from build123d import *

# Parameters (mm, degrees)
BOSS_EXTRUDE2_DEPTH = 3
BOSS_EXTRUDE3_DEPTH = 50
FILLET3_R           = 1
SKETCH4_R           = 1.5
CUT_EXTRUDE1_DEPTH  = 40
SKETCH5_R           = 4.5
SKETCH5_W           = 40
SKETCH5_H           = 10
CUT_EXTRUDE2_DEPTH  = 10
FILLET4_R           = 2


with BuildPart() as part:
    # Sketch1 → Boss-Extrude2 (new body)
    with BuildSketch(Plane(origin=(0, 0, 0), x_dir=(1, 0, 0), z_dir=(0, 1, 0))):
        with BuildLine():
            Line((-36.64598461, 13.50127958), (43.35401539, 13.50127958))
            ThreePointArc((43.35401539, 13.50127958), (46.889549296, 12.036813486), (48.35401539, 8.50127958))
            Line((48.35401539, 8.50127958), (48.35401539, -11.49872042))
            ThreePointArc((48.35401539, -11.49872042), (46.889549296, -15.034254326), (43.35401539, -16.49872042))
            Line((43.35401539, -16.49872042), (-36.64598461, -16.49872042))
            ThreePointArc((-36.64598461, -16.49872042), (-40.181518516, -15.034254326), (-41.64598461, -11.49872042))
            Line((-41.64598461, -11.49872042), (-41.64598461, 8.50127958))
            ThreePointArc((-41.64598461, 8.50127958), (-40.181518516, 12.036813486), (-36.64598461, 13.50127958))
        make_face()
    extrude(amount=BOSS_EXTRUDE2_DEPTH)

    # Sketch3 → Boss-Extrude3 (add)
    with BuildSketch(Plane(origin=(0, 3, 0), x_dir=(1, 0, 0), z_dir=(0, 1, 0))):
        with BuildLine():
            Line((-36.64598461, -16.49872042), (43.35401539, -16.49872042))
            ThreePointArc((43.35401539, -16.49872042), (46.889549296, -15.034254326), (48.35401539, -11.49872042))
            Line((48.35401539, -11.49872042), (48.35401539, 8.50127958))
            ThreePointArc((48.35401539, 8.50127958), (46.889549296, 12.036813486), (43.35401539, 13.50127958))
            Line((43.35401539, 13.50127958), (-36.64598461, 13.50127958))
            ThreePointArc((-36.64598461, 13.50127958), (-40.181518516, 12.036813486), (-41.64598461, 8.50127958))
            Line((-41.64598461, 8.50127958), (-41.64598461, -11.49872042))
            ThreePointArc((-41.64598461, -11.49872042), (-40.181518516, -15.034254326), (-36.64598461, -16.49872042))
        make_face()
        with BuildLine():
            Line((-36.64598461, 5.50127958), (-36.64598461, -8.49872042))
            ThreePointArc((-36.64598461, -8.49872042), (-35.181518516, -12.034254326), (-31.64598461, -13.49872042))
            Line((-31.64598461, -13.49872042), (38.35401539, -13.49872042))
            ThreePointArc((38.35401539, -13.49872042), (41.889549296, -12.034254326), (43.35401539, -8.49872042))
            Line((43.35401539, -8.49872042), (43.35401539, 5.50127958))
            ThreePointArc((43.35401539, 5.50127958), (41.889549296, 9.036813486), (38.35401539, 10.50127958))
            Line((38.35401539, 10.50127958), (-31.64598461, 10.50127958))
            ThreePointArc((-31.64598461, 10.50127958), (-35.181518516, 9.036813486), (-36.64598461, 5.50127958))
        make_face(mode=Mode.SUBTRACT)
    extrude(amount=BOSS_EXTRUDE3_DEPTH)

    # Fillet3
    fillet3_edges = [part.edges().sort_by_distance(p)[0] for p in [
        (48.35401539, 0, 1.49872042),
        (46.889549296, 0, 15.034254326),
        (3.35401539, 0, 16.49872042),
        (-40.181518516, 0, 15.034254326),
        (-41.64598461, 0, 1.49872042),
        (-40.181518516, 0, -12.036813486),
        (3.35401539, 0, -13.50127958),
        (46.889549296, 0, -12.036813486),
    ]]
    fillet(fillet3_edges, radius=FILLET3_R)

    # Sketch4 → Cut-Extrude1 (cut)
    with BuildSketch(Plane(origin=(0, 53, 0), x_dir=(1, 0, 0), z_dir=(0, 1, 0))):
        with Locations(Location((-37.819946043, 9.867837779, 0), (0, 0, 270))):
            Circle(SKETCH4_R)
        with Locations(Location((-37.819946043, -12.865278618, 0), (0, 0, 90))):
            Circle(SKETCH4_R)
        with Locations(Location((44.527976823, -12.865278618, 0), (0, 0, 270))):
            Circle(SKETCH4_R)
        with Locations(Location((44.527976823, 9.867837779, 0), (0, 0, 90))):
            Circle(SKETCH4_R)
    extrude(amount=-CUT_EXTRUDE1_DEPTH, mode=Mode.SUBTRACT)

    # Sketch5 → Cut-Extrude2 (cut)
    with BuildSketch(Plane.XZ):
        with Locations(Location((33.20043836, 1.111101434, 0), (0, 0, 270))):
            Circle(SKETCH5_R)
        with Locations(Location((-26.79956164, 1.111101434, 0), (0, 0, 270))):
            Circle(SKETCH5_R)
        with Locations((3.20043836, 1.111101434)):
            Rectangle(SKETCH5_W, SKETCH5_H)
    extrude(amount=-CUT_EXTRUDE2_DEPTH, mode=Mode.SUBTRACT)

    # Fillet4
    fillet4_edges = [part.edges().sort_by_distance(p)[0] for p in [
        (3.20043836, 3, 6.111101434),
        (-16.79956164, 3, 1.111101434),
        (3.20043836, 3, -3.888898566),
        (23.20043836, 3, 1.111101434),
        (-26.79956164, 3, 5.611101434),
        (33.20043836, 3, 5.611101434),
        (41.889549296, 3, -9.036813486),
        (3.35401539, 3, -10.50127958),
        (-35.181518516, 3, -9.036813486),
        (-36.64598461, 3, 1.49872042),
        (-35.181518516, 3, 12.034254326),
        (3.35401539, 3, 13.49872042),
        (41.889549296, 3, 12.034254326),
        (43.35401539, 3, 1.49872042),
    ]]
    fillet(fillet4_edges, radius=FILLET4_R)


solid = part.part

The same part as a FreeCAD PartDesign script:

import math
import FreeCAD as App
import Part
import Sketcher
Q = App.Units.Quantity


def edges_at(feature, points):
    """Names of the edges that pass closest to the given points."""
    edges = feature.Shape.Edges
    near = lambda p: min(range(len(edges)), key=lambda i: edges[i].distToShape(Part.Vertex(*p))[0])
    return sorted({f"Edge{near(p) + 1}" for p in points})

doc = App.newDocument("Part")
body = doc.addObject("PartDesign::Body", "Body")

# Sketch on XZ plane
sketch1 = body.newObject("Sketcher::SketchObject", "Sketch")
sketch1.AttachmentSupport = (doc.getObject("XZ_Plane"), [""])
sketch1.MapMode = "FlatFace"
sketch1.addGeometry([
    Part.LineSegment(App.Vector(43, -14, 0), App.Vector(-37, -14, 0)),  # 0
    Part.ArcOfCircle(Part.Circle(App.Vector(-37, -9, 0), App.Vector(0, 0, 1), 5), math.radians(180), math.radians(270)),  # 1
    Part.LineSegment(App.Vector(-42, -9, 0), App.Vector(-42, 11, 0)),  # 2
    Part.ArcOfCircle(Part.Circle(App.Vector(-37, 11, 0), App.Vector(0, 0, 1), 5), math.radians(90), math.radians(180)),  # 3
    Part.LineSegment(App.Vector(-37, 16, 0), App.Vector(43, 16, 0)),  # 4
    Part.ArcOfCircle(Part.Circle(App.Vector(43, 11, 0), App.Vector(0, 0, 1), 5), math.radians(0), math.radians(90)),  # 5
    Part.LineSegment(App.Vector(48, 11, 0), App.Vector(48, -9, 0)),  # 6
    Part.ArcOfCircle(Part.Circle(App.Vector(43, -9, 0), App.Vector(0, 0, 1), 5), math.radians(-90), math.radians(0)),  # 7
], False)
sketch1.addConstraint([
    Sketcher.Constraint("Tangent", 0, 2, 1, 2),
    Sketcher.Constraint("Tangent", 1, 1, 2, 1),
    Sketcher.Constraint("Tangent", 2, 2, 3, 2),
    Sketcher.Constraint("Tangent", 3, 1, 4, 1),
    Sketcher.Constraint("Tangent", 4, 2, 5, 2),
    Sketcher.Constraint("Tangent", 5, 1, 6, 1),
    Sketcher.Constraint("Tangent", 6, 2, 7, 2),
    Sketcher.Constraint("Tangent", 7, 1, 0, 1),
    Sketcher.Constraint("Horizontal", 0),
    Sketcher.Constraint("Vertical", 2),
    Sketcher.Constraint("Horizontal", 4),
    Sketcher.Constraint("Vertical", 6),
    Sketcher.Constraint("Equal", 1, 3),
    Sketcher.Constraint("Equal", 3, 5),
    Sketcher.Constraint("Equal", 5, 7),
    Sketcher.Constraint("Radius", 1, Q("5 mm")),
    Sketcher.Constraint("DistanceX", 0, 2, 0, 1, Q("80 mm")),
    Sketcher.Constraint("DistanceY", 2, 1, 2, 2, Q("20 mm")),
    Sketcher.Constraint("DistanceY", 1, 3, -1, 1, Q("8.50128 mm")),
    Sketcher.Constraint("DistanceX", 1, 3, -1, 1, Q("36.645985 mm")),
])
pad1 = body.newObject("PartDesign::Pad", "Pad")
pad1.Profile = sketch1
pad1.Length = 3
pad1.Reversed = True

# Sketch on XZ plane
sketch2 = body.newObject("Sketcher::SketchObject", "Sketch001")
sketch2.AttachmentSupport = (doc.getObject("XZ_Plane"), [""])
sketch2.MapMode = "FlatFace"
sketch2.AttachmentOffset = App.Placement(App.Vector(0, 0, -3), App.Rotation())
sketch2.addGeometry([
    Part.LineSegment(App.Vector(-37, 16, 0), App.Vector(43, 16, 0)),  # 0
    Part.ArcOfCircle(Part.Circle(App.Vector(43, 11, 0), App.Vector(0, 0, 1), 5), math.radians(0), math.radians(90)),  # 1
    Part.LineSegment(App.Vector(48, 11, 0), App.Vector(48, -9, 0)),  # 2
    Part.ArcOfCircle(Part.Circle(App.Vector(43, -9, 0), App.Vector(0, 0, 1), 5), math.radians(-90), math.radians(0)),  # 3
    Part.LineSegment(App.Vector(43, -14, 0), App.Vector(-37, -14, 0)),  # 4
    Part.ArcOfCircle(Part.Circle(App.Vector(-37, -9, 0), App.Vector(0, 0, 1), 5), math.radians(180), math.radians(270)),  # 5
    Part.LineSegment(App.Vector(-42, -9, 0), App.Vector(-42, 11, 0)),  # 6
    Part.ArcOfCircle(Part.Circle(App.Vector(-37, 11, 0), App.Vector(0, 0, 1), 5), math.radians(90), math.radians(180)),  # 7
    Part.LineSegment(App.Vector(-37, 8, 0), App.Vector(-37, -6, 0)),  # 8
    Part.ArcOfCircle(Part.Circle(App.Vector(-32, -6, 0), App.Vector(0, 0, 1), 5), math.radians(180), math.radians(270)),  # 9
    Part.LineSegment(App.Vector(-32, -11, 0), App.Vector(38, -11, 0)),  # 10
    Part.ArcOfCircle(Part.Circle(App.Vector(38, -6, 0), App.Vector(0, 0, 1), 5), math.radians(-90), math.radians(0)),  # 11
    Part.LineSegment(App.Vector(43, -6, 0), App.Vector(43, 8, 0)),  # 12
    Part.ArcOfCircle(Part.Circle(App.Vector(38, 8, 0), App.Vector(0, 0, 1), 5), math.radians(0), math.radians(90)),  # 13
    Part.LineSegment(App.Vector(38, 13, 0), App.Vector(-32, 13, 0)),  # 14
    Part.ArcOfCircle(Part.Circle(App.Vector(-32, 8, 0), App.Vector(0, 0, 1), 5), math.radians(90), math.radians(180)),  # 15
], False)
sketch2.addConstraint([
    Sketcher.Constraint("Tangent", 0, 2, 1, 2),
    Sketcher.Constraint("Tangent", 1, 1, 2, 1),
    Sketcher.Constraint("Tangent", 2, 2, 3, 2),
    Sketcher.Constraint("Tangent", 3, 1, 4, 1),
    Sketcher.Constraint("Tangent", 4, 2, 5, 2),
    Sketcher.Constraint("Tangent", 5, 1, 6, 1),
    Sketcher.Constraint("Tangent", 6, 2, 7, 2),
    Sketcher.Constraint("Tangent", 7, 1, 0, 1),
    Sketcher.Constraint("Tangent", 8, 2, 9, 1),
    Sketcher.Constraint("Tangent", 9, 2, 10, 1),
    Sketcher.Constraint("Tangent", 10, 2, 11, 1),
    Sketcher.Constraint("Tangent", 11, 2, 12, 1),
    Sketcher.Constraint("Tangent", 12, 2, 13, 1),
    Sketcher.Constraint("Tangent", 13, 2, 14, 1),
    Sketcher.Constraint("Tangent", 14, 2, 15, 1),
    Sketcher.Constraint("Tangent", 15, 2, 8, 1),
    Sketcher.Constraint("Horizontal", 0),
    Sketcher.Constraint("Vertical", 2),
    Sketcher.Constraint("Horizontal", 4),
    Sketcher.Constraint("Vertical", 6),
    Sketcher.Constraint("Vertical", 8),
    Sketcher.Constraint("Horizontal", 10),
    Sketcher.Constraint("Vertical", 12),
    Sketcher.Constraint("Horizontal", 14),
    Sketcher.Constraint("Equal", 1, 3),
    Sketcher.Constraint("Equal", 3, 5),
    Sketcher.Constraint("Equal", 5, 7),
    Sketcher.Constraint("Equal", 7, 9),
    Sketcher.Constraint("Equal", 9, 11),
    Sketcher.Constraint("Equal", 11, 13),
    Sketcher.Constraint("Equal", 13, 15),
    Sketcher.Constraint("Vertical", 7, 1, 8, 2),
    Sketcher.Constraint("Vertical", 3, 1, 11, 2),
    Sketcher.Constraint("Radius", 1, Q("5 mm")),
    Sketcher.Constraint("DistanceX", 0, 1, 0, 2, Q("80 mm")),
    Sketcher.Constraint("DistanceY", 2, 2, 2, 1, Q("20 mm")),
    Sketcher.Constraint("DistanceY", 8, 2, 8, 1, Q("14 mm")),
    Sketcher.Constraint("DistanceY", 5, 3, 9, 3, Q("3 mm")),
    Sketcher.Constraint("DistanceY", -1, 1, 1, 3, Q("11.49872 mm")),
    Sketcher.Constraint("DistanceX", -1, 1, 1, 3, Q("43.354015 mm")),
])
pad2 = body.newObject("PartDesign::Pad", "Pad001")
pad2.Profile = sketch2
pad2.Length = 50
pad2.Reversed = True
doc.recompute()

fillet = body.newObject("PartDesign::Fillet", "Fillet")
fillet.Base = (pad2, edges_at(pad2, [
    (48.354, 0, 1.499),
    (46.89, 0, 15.034),
    (3.354, 0, 16.499),
    (-40.182, 0, 15.034),
    (-41.646, 0, 1.499),
    (-40.182, 0, -12.037),
    (3.354, 0, -13.501),
    (46.89, 0, -12.037),
]))
fillet.Radius = 1

# Sketch on XZ plane
sketch3 = body.newObject("Sketcher::SketchObject", "Sketch002")
sketch3.AttachmentSupport = (doc.getObject("XZ_Plane"), [""])
sketch3.MapMode = "FlatFace"
sketch3.AttachmentOffset = App.Placement(App.Vector(0, 0, -53), App.Rotation())
sketch3.addGeometry([
    Part.Circle(App.Vector(-37.8, -9.9, 0), App.Vector(0, 0, 1), 1.5),
    Part.Circle(App.Vector(-37.8, 12.9, 0), App.Vector(0, 0, 1), 1.5),
    Part.Circle(App.Vector(44.5, 12.9, 0), App.Vector(0, 0, 1), 1.5),
    Part.Circle(App.Vector(44.5, -9.9, 0), App.Vector(0, 0, 1), 1.5),
], False)
sketch3.addConstraint([
    Sketcher.Constraint("Equal", 0, 1),
    Sketcher.Constraint("Equal", 1, 2),
    Sketcher.Constraint("Equal", 2, 3),
    Sketcher.Constraint("Horizontal", 1, 3, 2, 3),
    Sketcher.Constraint("Horizontal", 0, 3, 3, 3),
    Sketcher.Constraint("Vertical", 0, 3, 1, 3),
    Sketcher.Constraint("Vertical", 2, 3, 3, 3),
    Sketcher.Constraint("Diameter", 0, Q("3 mm")),
    Sketcher.Constraint("DistanceY", -1, 1, 1, 3, Q("12.865279 mm")),
    Sketcher.Constraint("DistanceX", 0, 3, -1, 1, Q("37.819946 mm")),
    Sketcher.Constraint("DistanceY", 0, 3, -1, 1, Q("9.867838 mm")),
    Sketcher.Constraint("DistanceX", -1, 1, 2, 3, Q("44.527977 mm")),
])
pocket1 = body.newObject("PartDesign::Pocket", "Pocket")
pocket1.Profile = sketch3
pocket1.Length = 40
pocket1.Reversed = True

# Sketch on XZ plane
sketch4 = body.newObject("Sketcher::SketchObject", "Sketch003")
sketch4.AttachmentSupport = (doc.getObject("XZ_Plane"), [""])
sketch4.MapMode = "FlatFace"
sketch4.addGeometry([
    Part.Circle(App.Vector(33.2, 1.1, 0), App.Vector(0, 0, 1), 4.5),  # 0
    Part.Circle(App.Vector(-26.8, 1.1, 0), App.Vector(0, 0, 1), 4.5),  # 1
    Part.LineSegment(App.Vector(-16.8, 6.1, 0), App.Vector(-16.8, -3.9, 0)),  # 2
    Part.LineSegment(App.Vector(-16.8, -3.9, 0), App.Vector(23.2, -3.9, 0)),  # 3
    Part.LineSegment(App.Vector(23.2, -3.9, 0), App.Vector(23.2, 6.1, 0)),  # 4
    Part.LineSegment(App.Vector(23.2, 6.1, 0), App.Vector(-16.8, 6.1, 0)),  # 5
], False)
sketch4.addConstraint([
    Sketcher.Constraint("Coincident", 2, 2, 3, 1),
    Sketcher.Constraint("Coincident", 3, 2, 4, 1),
    Sketcher.Constraint("Coincident", 4, 2, 5, 1),
    Sketcher.Constraint("Coincident", 5, 2, 2, 1),
    Sketcher.Constraint("Vertical", 2),
    Sketcher.Constraint("Horizontal", 3),
    Sketcher.Constraint("Vertical", 4),
    Sketcher.Constraint("Horizontal", 5),
    Sketcher.Constraint("Equal", 0, 1),
    Sketcher.Constraint("Horizontal", 0, 3, 1, 3),
    Sketcher.Constraint("Diameter", 0, Q("9 mm")),
    Sketcher.Constraint("DistanceX", 3, 1, 3, 2, Q("40 mm")),
    Sketcher.Constraint("DistanceY", 2, 2, 2, 1, Q("10 mm")),
    Sketcher.Constraint("DistanceX", 1, 3, 0, 3, Q("60 mm")),
    Sketcher.Constraint("DistanceX", 1, 3, 2, 2, Q("10 mm")),
    Sketcher.Constraint("DistanceY", 2, 2, 1, 3, Q("5 mm")),
    Sketcher.Constraint("DistanceY", -1, 1, 0, 3, Q("1.111101 mm")),
    Sketcher.Constraint("DistanceX", -1, 1, 0, 3, Q("33.200438 mm")),
])
pocket2 = body.newObject("PartDesign::Pocket", "Pocket001")
pocket2.Profile = sketch4
pocket2.Length = 10
doc.recompute()

fillet2 = body.newObject("PartDesign::Fillet", "Fillet001")
fillet2.Base = (pocket2, edges_at(pocket2, [
    (3.2, 3, 6.111),
    (-16.8, 3, 1.111),
    (3.2, 3, -3.889),
    (23.2, 3, 1.111),
    (-26.8, 3, 5.611),
    (33.2, 3, 5.611),
    (41.89, 3, -9.037),
    (3.354, 3, -10.501),
    (-35.182, 3, -9.037),
    (-36.646, 3, 1.499),
    (-35.182, 3, 12.034),
    (3.354, 3, 13.499),
    (41.89, 3, 12.034),
    (43.354, 3, 1.499),
]))
fillet2.Radius = 2

doc.recompute()
